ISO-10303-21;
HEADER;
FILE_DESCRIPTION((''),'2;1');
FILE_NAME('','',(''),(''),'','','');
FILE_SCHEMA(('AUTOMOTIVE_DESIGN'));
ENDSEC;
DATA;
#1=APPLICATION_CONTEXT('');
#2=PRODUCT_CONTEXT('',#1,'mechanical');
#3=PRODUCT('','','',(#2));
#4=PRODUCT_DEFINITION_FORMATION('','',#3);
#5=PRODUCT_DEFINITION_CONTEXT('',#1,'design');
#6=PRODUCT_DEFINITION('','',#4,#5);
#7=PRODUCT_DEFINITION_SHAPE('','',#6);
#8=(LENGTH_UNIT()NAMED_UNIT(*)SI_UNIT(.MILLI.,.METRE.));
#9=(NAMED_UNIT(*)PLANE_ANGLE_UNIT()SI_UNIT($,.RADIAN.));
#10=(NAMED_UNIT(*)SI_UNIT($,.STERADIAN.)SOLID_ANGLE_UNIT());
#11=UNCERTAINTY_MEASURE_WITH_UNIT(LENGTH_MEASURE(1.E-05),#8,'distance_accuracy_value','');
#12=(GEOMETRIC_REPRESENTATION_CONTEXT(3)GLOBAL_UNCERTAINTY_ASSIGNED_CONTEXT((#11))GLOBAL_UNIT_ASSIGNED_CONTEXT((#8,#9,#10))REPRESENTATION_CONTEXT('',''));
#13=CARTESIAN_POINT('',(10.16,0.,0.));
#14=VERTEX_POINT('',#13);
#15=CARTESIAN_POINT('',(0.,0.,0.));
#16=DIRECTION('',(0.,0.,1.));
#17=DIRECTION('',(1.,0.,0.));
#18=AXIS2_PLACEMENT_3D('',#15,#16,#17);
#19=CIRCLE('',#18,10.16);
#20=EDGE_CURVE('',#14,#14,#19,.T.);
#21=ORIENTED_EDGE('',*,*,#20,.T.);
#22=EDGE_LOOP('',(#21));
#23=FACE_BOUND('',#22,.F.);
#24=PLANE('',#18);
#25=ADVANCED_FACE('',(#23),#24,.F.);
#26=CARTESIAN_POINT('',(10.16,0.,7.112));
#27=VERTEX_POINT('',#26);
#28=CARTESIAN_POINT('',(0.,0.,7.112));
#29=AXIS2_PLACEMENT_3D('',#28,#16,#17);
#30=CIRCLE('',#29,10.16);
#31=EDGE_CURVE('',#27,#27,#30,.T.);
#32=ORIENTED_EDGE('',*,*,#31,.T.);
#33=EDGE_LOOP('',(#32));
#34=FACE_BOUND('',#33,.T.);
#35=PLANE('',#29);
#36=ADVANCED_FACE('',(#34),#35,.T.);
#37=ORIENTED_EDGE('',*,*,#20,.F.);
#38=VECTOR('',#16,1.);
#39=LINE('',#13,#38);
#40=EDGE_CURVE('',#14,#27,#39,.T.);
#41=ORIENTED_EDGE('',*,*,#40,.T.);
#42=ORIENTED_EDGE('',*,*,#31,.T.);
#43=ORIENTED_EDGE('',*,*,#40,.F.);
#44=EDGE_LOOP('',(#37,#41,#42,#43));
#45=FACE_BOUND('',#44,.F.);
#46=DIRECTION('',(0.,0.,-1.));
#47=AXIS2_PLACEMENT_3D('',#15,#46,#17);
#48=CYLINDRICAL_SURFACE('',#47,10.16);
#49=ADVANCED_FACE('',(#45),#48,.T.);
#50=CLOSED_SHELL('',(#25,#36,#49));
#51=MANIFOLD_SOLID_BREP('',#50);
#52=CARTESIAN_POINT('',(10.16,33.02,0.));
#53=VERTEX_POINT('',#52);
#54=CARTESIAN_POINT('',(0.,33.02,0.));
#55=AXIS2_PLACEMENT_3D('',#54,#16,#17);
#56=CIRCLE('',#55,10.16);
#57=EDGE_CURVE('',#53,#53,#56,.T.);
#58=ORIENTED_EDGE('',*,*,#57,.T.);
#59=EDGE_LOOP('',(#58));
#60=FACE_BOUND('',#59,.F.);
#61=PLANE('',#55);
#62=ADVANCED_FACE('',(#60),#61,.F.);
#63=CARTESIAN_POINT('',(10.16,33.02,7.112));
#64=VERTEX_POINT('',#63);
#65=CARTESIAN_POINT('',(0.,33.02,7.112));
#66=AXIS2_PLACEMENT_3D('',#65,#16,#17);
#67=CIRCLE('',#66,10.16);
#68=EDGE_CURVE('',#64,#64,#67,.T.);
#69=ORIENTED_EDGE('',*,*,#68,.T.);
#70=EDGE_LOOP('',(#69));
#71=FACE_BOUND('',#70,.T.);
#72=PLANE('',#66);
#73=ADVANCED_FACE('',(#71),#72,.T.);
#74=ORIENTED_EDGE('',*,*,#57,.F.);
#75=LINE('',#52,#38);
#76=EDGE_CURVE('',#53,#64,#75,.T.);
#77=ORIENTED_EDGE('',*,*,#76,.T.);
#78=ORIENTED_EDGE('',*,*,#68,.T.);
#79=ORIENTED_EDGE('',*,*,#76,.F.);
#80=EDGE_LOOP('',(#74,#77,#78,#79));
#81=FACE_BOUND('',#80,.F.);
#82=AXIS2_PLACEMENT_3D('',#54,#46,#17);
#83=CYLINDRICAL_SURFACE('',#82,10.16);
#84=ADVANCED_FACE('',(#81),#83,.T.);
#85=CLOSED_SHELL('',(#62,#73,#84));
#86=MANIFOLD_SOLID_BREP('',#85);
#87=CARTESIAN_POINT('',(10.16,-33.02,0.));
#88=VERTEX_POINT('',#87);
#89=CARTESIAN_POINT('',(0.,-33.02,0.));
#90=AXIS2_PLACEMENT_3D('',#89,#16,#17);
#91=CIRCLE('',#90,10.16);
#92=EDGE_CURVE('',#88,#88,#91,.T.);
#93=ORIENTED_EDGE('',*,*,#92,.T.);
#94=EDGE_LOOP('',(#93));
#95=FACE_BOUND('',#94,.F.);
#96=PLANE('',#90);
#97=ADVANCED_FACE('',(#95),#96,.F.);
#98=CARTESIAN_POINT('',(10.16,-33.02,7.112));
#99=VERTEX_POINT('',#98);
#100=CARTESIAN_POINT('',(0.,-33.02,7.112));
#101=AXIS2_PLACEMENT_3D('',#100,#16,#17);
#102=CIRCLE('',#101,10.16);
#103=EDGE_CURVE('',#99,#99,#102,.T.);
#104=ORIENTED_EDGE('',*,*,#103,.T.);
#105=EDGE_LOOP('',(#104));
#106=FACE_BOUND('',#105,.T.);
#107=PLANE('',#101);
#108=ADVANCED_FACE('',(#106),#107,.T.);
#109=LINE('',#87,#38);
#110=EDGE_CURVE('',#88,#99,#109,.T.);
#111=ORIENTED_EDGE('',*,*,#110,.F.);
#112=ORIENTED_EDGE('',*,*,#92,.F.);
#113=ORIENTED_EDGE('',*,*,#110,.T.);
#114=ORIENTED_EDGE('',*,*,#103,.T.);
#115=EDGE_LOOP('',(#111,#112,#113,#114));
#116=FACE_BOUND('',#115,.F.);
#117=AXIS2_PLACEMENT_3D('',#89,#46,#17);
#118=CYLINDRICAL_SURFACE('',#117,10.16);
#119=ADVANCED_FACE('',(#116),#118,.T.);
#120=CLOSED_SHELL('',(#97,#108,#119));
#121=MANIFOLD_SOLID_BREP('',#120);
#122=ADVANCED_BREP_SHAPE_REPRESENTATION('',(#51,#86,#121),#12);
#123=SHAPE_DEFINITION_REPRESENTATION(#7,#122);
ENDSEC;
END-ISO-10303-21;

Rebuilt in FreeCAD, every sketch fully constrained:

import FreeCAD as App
import Part
import Sketcher
from FreeCAD import Vector
Q = App.Units.Quantity

doc = App.newDocument("Part")
body = doc.addObject("PartDesign::Body", "Body")
body.AllowCompound = True

# Sketch on XY plane
sketch1 = body.newObject("Sketcher::SketchObject", "Sketch")
sketch1.AttachmentSupport = (doc.getObject("XY_Plane"), [""])
sketch1.MapMode = "FlatFace"
sketch1.addGeometry([
    Part.Circle(Vector(0, 33, 0), Vector(0, 0, 1), 10),
    Part.Circle(Vector(0, -33, 0), Vector(0, 0, 1), 10),
    Part.Circle(Vector(0, 0, 0), Vector(0, 0, 1), 10),
], False)
sketch1.addConstraint([
    Sketcher.Constraint("Coincident", 2, 3, -1, 1),
    Sketcher.Constraint("Equal", 0, 1),
    Sketcher.Constraint("Equal", 1, 2),
    Sketcher.Constraint("Symmetric", 0, 3, 1, 3, -1, 1),
    Sketcher.Constraint("PointOnObject", 0, 3, -2),
    Sketcher.Constraint("Diameter", 0, Q("0.8 in")),
    Sketcher.Constraint("DistanceY", -1, 1, 0, 3, Q("1.3 in")),
])
pad1 = body.newObject("PartDesign::Pad", "Pad")
pad1.Profile = sketch1
pad1.Length = Q("0.28 in")

doc.recompute()
